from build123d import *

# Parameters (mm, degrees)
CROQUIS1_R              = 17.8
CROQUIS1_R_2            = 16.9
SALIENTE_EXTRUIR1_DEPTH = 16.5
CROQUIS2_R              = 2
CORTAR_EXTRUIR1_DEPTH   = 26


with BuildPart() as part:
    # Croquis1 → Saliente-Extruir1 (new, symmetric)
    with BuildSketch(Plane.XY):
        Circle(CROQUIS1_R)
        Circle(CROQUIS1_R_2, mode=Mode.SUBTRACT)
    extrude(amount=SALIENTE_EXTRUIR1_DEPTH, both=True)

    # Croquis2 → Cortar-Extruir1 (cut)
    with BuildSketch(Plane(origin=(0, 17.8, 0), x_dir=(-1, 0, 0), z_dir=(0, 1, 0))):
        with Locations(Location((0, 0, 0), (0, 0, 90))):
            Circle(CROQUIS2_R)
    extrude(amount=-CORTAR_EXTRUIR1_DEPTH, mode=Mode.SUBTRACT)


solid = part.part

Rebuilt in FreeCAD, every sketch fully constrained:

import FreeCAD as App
import Part
import Sketcher
Q = App.Units.Quantity

doc = App.newDocument("Part")
params = doc.addObject("Spreadsheet::Sheet", "Params")
for row, (alias, value) in enumerate([
    ("sketch1_diameter", "35.6 mm"),
    ("sketch1_diameter2", "33.8 mm"),
    ("pad1_length", "33 mm"),
    ("sketch2_diameter", "4 mm"),
    ("pocket1_length", "26 mm"),
], start=1):
    params.set(f"A{row}", alias)
    params.set(f"B{row}", "=" + value)
    params.setAlias(f"B{row}", alias)

body = doc.addObject("PartDesign::Body", "Body")

sketch1 = doc.addObject("Sketcher::SketchObject", "Sketch")
body.addObject(sketch1)
sketch1.AttachmentSupport = (doc.XY_Plane, [""])
sketch1.MapMode = "FlatFace"
sketch1.addGeometry([
    Part.Circle(App.Vector(0, 0, 0), App.Vector(0, 0, 1), 17.8),
    Part.Circle(App.Vector(0, 0, 0), App.Vector(0, 0, 1), 16.9),
], False)
sketch1.addConstraint([
    Sketcher.Constraint("Coincident", 0, 3, -1, 1),
    Sketcher.Constraint("Coincident", 1, 3, -1, 1),
    Sketcher.Constraint("Diameter", 0, Q("35.6 mm")),
    Sketcher.Constraint("Diameter", 1, Q("33.8 mm")),
])
sketch1.setExpression("Constraints[2]", "Params.sketch1_diameter")
sketch1.setExpression("Constraints[3]", "Params.sketch1_diameter2")
pad1 = doc.addObject("PartDesign::Pad", "Pad")
body.addObject(pad1)
pad1.Profile = sketch1
pad1.setExpression("Length", "Params.pad1_length")
pad1.Midplane = True

sketch2 = doc.addObject("Sketcher::SketchObject", "Sketch001")
body.addObject(sketch2)
sketch2.AttachmentSupport = (doc.XZ_Plane, [""])
sketch2.MapMode = "FlatFace"
sketch2.AttachmentOffset = App.Placement(App.Vector(0, 0, -17.8), App.Rotation())
sketch2.addGeometry(Part.Circle(App.Vector(0, 0, 0), App.Vector(0, 0, 1), 2), False)
sketch2.addConstraint([
    Sketcher.Constraint("Coincident", 0, 3, -1, 1),
    Sketcher.Constraint("Diameter", 0, Q("4 mm")),
])
sketch2.setExpression("Constraints[1]", "Params.sketch2_diameter")
pocket1 = doc.addObject("PartDesign::Pocket", "Pocket")
body.addObject(pocket1)
pocket1.Profile = sketch2
pocket1.setExpression("Length", "Params.pocket1_length")
pocket1.Reversed = True

doc.recompute()
